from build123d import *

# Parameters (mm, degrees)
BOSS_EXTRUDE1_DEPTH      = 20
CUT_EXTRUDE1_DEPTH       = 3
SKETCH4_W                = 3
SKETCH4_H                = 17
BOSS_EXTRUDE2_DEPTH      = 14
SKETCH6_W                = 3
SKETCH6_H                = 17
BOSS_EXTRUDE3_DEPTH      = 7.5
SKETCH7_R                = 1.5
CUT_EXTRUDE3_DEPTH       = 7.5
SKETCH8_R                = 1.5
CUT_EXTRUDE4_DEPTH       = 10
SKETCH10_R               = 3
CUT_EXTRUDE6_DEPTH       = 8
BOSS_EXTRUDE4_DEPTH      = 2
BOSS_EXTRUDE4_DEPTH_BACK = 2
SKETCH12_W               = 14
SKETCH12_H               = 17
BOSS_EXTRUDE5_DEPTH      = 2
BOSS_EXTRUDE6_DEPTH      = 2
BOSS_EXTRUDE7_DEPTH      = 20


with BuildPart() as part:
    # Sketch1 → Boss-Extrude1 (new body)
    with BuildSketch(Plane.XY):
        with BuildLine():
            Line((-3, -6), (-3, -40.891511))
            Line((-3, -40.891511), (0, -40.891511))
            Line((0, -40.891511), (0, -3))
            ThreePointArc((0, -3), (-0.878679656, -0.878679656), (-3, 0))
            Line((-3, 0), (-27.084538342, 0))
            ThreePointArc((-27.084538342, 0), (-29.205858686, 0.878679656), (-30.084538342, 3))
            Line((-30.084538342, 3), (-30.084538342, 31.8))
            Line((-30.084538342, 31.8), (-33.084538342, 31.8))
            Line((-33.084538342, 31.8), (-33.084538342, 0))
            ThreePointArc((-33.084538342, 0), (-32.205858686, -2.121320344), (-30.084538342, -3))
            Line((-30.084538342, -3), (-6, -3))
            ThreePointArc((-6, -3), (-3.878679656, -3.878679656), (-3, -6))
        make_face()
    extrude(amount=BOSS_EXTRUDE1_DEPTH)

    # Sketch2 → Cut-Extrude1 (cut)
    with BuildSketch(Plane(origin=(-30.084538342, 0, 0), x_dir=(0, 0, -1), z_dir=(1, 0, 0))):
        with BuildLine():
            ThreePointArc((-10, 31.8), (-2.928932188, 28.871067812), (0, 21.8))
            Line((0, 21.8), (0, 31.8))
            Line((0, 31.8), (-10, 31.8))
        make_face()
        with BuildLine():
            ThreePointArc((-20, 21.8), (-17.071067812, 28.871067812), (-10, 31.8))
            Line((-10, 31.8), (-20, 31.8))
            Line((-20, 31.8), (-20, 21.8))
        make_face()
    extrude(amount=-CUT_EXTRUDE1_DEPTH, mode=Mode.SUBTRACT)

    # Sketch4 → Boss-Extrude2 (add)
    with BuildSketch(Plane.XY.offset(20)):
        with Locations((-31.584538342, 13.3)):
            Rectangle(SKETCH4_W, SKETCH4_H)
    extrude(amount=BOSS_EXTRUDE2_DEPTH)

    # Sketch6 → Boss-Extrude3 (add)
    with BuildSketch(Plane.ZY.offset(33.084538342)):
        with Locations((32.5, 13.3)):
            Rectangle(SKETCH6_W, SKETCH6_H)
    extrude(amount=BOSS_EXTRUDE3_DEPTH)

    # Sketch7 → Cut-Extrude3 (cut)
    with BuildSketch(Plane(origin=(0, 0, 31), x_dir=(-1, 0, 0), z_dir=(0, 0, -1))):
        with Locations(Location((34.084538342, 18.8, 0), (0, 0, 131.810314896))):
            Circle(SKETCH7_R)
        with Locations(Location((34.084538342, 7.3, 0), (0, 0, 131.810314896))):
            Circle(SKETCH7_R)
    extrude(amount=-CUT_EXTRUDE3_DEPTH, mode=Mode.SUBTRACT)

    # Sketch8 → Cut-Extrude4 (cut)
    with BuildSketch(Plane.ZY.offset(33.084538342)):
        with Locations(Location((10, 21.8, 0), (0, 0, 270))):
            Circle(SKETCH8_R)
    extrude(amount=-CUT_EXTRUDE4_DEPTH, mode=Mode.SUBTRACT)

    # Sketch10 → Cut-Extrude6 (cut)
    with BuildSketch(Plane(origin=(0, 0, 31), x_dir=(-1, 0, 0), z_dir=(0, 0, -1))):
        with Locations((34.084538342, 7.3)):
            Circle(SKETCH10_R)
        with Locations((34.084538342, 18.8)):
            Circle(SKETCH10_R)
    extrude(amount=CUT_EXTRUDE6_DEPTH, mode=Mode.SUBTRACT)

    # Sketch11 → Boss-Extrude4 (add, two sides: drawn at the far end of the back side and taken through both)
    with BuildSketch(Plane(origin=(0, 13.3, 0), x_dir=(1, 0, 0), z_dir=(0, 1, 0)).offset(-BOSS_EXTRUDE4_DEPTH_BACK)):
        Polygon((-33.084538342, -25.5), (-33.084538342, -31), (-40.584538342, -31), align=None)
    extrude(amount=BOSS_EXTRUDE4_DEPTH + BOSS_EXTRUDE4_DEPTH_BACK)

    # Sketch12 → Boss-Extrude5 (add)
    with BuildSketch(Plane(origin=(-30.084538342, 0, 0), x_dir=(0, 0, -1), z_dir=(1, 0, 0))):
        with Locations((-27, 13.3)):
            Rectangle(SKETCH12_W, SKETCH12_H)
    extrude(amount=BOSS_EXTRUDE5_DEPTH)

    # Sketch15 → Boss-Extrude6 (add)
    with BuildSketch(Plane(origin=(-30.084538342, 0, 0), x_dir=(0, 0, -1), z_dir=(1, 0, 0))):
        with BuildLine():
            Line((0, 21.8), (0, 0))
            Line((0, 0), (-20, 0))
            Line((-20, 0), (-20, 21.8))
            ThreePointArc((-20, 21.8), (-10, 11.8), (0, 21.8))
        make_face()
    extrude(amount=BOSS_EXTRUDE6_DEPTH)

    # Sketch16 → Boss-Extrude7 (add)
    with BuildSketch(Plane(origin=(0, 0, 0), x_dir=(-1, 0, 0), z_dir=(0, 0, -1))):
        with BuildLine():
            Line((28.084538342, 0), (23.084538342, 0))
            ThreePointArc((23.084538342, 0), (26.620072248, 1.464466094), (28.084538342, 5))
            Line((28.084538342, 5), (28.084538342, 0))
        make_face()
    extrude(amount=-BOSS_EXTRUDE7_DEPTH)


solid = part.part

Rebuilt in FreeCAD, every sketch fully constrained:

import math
import FreeCAD as App
import Part
import Sketcher
Q = App.Units.Quantity

doc = App.newDocument("Part")
body = doc.addObject("PartDesign::Body", "Body")

# Sketch on XY plane
sketch1 = body.newObject("Sketcher::SketchObject", "Sketch")
sketch1.AttachmentSupport = (doc.getObject("XY_Plane"), [""])
sketch1.MapMode = "FlatFace"
sketch1.addGeometry(Part.LineSegment(App.Vector(-3, -6, 0), App.Vector(-3, -40.9, 0)), False)
sketch1.addGeometry(Part.LineSegment(App.Vector(-3, -40.9, 0), App.Vector(0, -40.9, 0)), False)
sketch1.addGeometry(Part.LineSegment(App.Vector(0, -40.9, 0), App.Vector(0, -3, 0)), False)
sketch1.addGeometry(Part.ArcOfCircle(Part.Circle(App.Vector(-3, -3, 0), App.Vector(0, 0, 1), 3), math.radians(0), math.radians(90)), False)
sketch1.addGeometry(Part.LineSegment(App.Vector(-3, 0, 0), App.Vector(-27.1, 0, 0)), False)
sketch1.addGeometry(Part.ArcOfCircle(Part.Circle(App.Vector(-27.1, 3, 0), App.Vector(0, 0, 1), 3), math.radians(180), math.radians(270)), False)
sketch1.addGeometry(Part.LineSegment(App.Vector(-30.1, 3, 0), App.Vector(-30.1, 31.8, 0)), False)
sketch1.addGeometry(Part.LineSegment(App.Vector(-30.1, 31.8, 0), App.Vector(-33.1, 31.8, 0)), False)
sketch1.addGeometry(Part.LineSegment(App.Vector(-33.1, 31.8, 0), App.Vector(-33.1, 0, 0)), False)
sketch1.addGeometry(Part.ArcOfCircle(Part.Circle(App.Vector(-30.1, 0, 0), App.Vector(0, 0, 1), 3), math.radians(180), math.radians(270)), False)
sketch1.addGeometry(Part.LineSegment(App.Vector(-30.1, -3, 0), App.Vector(-6, -3, 0)), False)
sketch1.addGeometry(Part.ArcOfCircle(Part.Circle(App.Vector(-6, -6, 0), App.Vector(0, 0, 1), 3), math.radians(0), math.radians(90)), False)
sketch1.addConstraint(Sketcher.Constraint("Coincident", 0, 2, 1, 1))
sketch1.addConstraint(Sketcher.Constraint("Coincident", 1, 2, 2, 1))
sketch1.addConstraint(Sketcher.Constraint("Tangent", 2, 2, 3, 1))
sketch1.addConstraint(Sketcher.Constraint("Tangent", 3, 2, 4, 1))
sketch1.addConstraint(Sketcher.Constraint("Tangent", 4, 2, 5, 2))
sketch1.addConstraint(Sketcher.Constraint("Tangent", 5, 1, 6, 1))
sketch1.addConstraint(Sketcher.Constraint("Coincident", 6, 2, 7, 1))
sketch1.addConstraint(Sketcher.Constraint("Coincident", 7, 2, 8, 1))
sketch1.addConstraint(Sketcher.Constraint("Tangent", 8, 2, 9, 1))
sketch1.addConstraint(Sketcher.Constraint("Tangent", 9, 2, 10, 1))
sketch1.addConstraint(Sketcher.Constraint("Tangent", 10, 2, 11, 2))
sketch1.addConstraint(Sketcher.Constraint("Tangent", 11, 1, 0, 1))
sketch1.addConstraint(Sketcher.Constraint("Vertical", 0))
sketch1.addConstraint(Sketcher.Constraint("Horizontal", 1))
sketch1.addConstraint(Sketcher.Constraint("Vertical", 2))
sketch1.addConstraint(Sketcher.Constraint("Horizontal", 4))
sketch1.addConstraint(Sketcher.Constraint("Vertical", 6))
sketch1.addConstraint(Sketcher.Constraint("Horizontal", 7))
sketch1.addConstraint(Sketcher.Constraint("Vertical", 8))
sketch1.addConstraint(Sketcher.Constraint("Horizontal", 10))
sketch1.addConstraint(Sketcher.Constraint("Equal", 3, 5))
sketch1.addConstraint(Sketcher.Constraint("Equal", 5, 9))
sketch1.addConstraint(Sketcher.Constraint("Equal", 9, 11))
sketch1.addConstraint(Sketcher.Constraint("Symmetric", 5, 1, 9, 2, -1))
sketch1.addConstraint(Sketcher.Constraint("PointOnObject", 9, 3, -1))
sketch1.addConstraint(Sketcher.Constraint("PointOnObject", 1, 2, -2))
sketch1.addConstraint(Sketcher.Constraint("Vertical", 3, 3, 0, 2))
sketch1.addConstraint(Sketcher.Constraint("Radius", 3, Q("3 mm")))
sketch1.addConstraint(Sketcher.Constraint("DistanceY", 6, 1, 6, 2, Q("28.8 mm")))
sketch1.addConstraint(Sketcher.Constraint("DistanceX", 4, 2, 4, 1, Q("24.084538 mm")))
sketch1.addConstraint(Sketcher.Constraint("DistanceY", 0, 2, 0, 1, Q("34.891511 mm")))
pad1 = body.newObject("PartDesign::Pad", "Pad")
pad1.Profile = sketch1
pad1.Length = 20

# Sketch on YZ plane
sketch2 = body.newObject("Sketcher::SketchObject", "Sketch001")
sketch2.AttachmentSupport = (doc.getObject("YZ_Plane"), [""])
sketch2.MapMode = "FlatFace"
sketch2.AttachmentOffset = App.Placement(App.Vector(0, 0, -30.084538), App.Rotation())
sketch2.addGeometry(Part.ArcOfCircle(Part.Circle(App.Vector(22, 10, 0), App.Vector(0, 0, 1), 10), math.radians(-90), math.radians(0)), False)
sketch2.addGeometry(Part.LineSegment(App.Vector(22, 0, 0), App.Vector(32, 0, 0)), False)
sketch2.addGeometry(Part.LineSegment(App.Vector(32, 0, 0), App.Vector(32, 10, 0)), False)
sketch2.addGeometry(Part.ArcOfCircle(Part.Circle(App.Vector(22, 10, 0), App.Vector(0, 0, 1), 10), math.radians(0), math.radians(90)), False)
sketch2.addGeometry(Part.LineSegment(App.Vector(32, 10, 0), App.Vector(32, 20, 0)), False)
sketch2.addGeometry(Part.LineSegment(App.Vector(32, 20, 0), App.Vector(22, 20, 0)), False)
sketch2.addConstraint(Sketcher.Constraint("Tangent", 0, 1, 1, 1))
sketch2.addConstraint(Sketcher.Constraint("Coincident", 1, 2, 2, 1))
sketch2.addConstraint(Sketcher.Constraint("Tangent", 2, 2, 0, 2))
sketch2.addConstraint(Sketcher.Constraint("Tangent", 3, 1, 4, 1))
sketch2.addConstraint(Sketcher.Constraint("Coincident", 4, 2, 5, 1))
sketch2.addConstraint(Sketcher.Constraint("Tangent", 5, 2, 3, 2))
sketch2.addConstraint(Sketcher.Constraint("Horizontal", 1))
sketch2.addConstraint(Sketcher.Constraint("Vertical", 2))
sketch2.addConstraint(Sketcher.Constraint("Vertical", 4))
sketch2.addConstraint(Sketcher.Constraint("Horizontal", 5))
sketch2.addConstraint(Sketcher.Constraint("Coincident", 3, 3, 0, 3))
sketch2.addConstraint(Sketcher.Constraint("Equal", 0, 3))
sketch2.addConstraint(Sketcher.Constraint("PointOnObject", 0, 1, -1))
sketch2.addConstraint(Sketcher.Constraint("Radius", 0, Q("10 mm")))
sketch2.addConstraint(Sketcher.Constraint("DistanceX", -1, 1, 0, 3, Q("21.8 mm")))
pocket1 = body.newObject("PartDesign::Pocket", "Pocket")
pocket1.Profile = sketch2
pocket1.Length = 3

# Sketch on XY plane
sketch3 = body.newObject("Sketcher::SketchObject", "Sketch002")
sketch3.AttachmentSupport = (doc.getObject("XY_Plane"), [""])
sketch3.MapMode = "FlatFace"
sketch3.AttachmentOffset = App.Placement(App.Vector(0, 0, 20), App.Rotation())
sketch3.addGeometry(Part.LineSegment(App.Vector(-33.1, 21.8, 0), App.Vector(-33.1, 4.8, 0)), False)
sketch3.addGeometry(Part.LineSegment(App.Vector(-33.1, 4.8, 0), App.Vector(-30.1, 4.8, 0)), False)
sketch3.addGeometry(Part.LineSegment(App.Vector(-30.1, 4.8, 0), App.Vector(-30.1, 21.8, 0)), False)
sketch3.addGeometry(Part.LineSegment(App.Vector(-30.1, 21.8, 0), App.Vector(-33.1, 21.8, 0)), False)
sketch3.addConstraint(Sketcher.Constraint("Coincident", 0, 2, 1, 1))
sketch3.addConstraint(Sketcher.Constraint("Coincident", 1, 2, 2, 1))
sketch3.addConstraint(Sketcher.Constraint("Coincident", 2, 2, 3, 1))
sketch3.addConstraint(Sketcher.Constraint("Coincident", 3, 2, 0, 1))
sketch3.addConstraint(Sketcher.Constraint("Vertical", 0))
sketch3.addConstraint(Sketcher.Constraint("Horizontal", 1))
sketch3.addConstraint(Sketcher.Constraint("Vertical", 2))
sketch3.addConstraint(Sketcher.Constraint("Horizontal", 3))
sketch3.addConstraint(Sketcher.Constraint("DistanceX", 1, 1, 1, 2, Q("3 mm")))
sketch3.addConstraint(Sketcher.Constraint("DistanceY", 0, 2, 0, 1, Q("17 mm")))
sketch3.addConstraint(Sketcher.Constraint("DistanceY", -1, 1, 0, 2, Q("4.8 mm")))
sketch3.addConstraint(Sketcher.Constraint("DistanceX", 0, 2, -1, 1, Q("33.084538 mm")))
pad2 = body.newObject("PartDesign::Pad", "Pad001")
pad2.Profile = sketch3
pad2.Length = 14

# Sketch on YZ plane
sketch4 = body.newObject("Sketcher::SketchObject", "Sketch003")
sketch4.AttachmentSupport = (doc.getObject("YZ_Plane"), [""])
sketch4.MapMode = "FlatFace"
sketch4.AttachmentOffset = App.Placement(App.Vector(0, 0, -33.084538), App.Rotation())
sketch4.addGeometry(Part.LineSegment(App.Vector(21.8, 31, 0), App.Vector(4.8, 31, 0)), False)
sketch4.addGeometry(Part.LineSegment(App.Vector(4.8, 31, 0), App.Vector(4.8, 34, 0)), False)
sketch4.addGeometry(Part.LineSegment(App.Vector(4.8, 34, 0), App.Vector(21.8, 34, 0)), False)
sketch4.addGeometry(Part.LineSegment(App.Vector(21.8, 34, 0), App.Vector(21.8, 31, 0)), False)
sketch4.addConstraint(Sketcher.Constraint("Coincident", 0, 2, 1, 1))
sketch4.addConstraint(Sketcher.Constraint("Coincident", 1, 2, 2, 1))
sketch4.addConstraint(Sketcher.Constraint("Coincident", 2, 2, 3, 1))
sketch4.addConstraint(Sketcher.Constraint("Coincident", 3, 2, 0, 1))
sketch4.addConstraint(Sketcher.Constraint("Horizontal", 0))
sketch4.addConstraint(Sketcher.Constraint("Vertical", 1))
sketch4.addConstraint(Sketcher.Constraint("Horizontal", 2))
sketch4.addConstraint(Sketcher.Constraint("Vertical", 3))
sketch4.addConstraint(Sketcher.Constraint("DistanceX", 0, 2, 0, 1, Q("17 mm")))
sketch4.addConstraint(Sketcher.Constraint("DistanceY", 1, 1, 1, 2, Q("3 mm")))
sketch4.addConstraint(Sketcher.Constraint("DistanceY", -1, 1, 0, 2, Q("31 mm")))
sketch4.addConstraint(Sketcher.Constraint("DistanceX", -1, 1, 0, 2, Q("4.8 mm")))
pad3 = body.newObject("PartDesign::Pad", "Pad002")
pad3.Profile = sketch4
pad3.Length = 7.5
pad3.Reversed = True

# Sketch on XY plane
sketch5 = body.newObject("Sketcher::SketchObject", "Sketch004")
sketch5.AttachmentSupport = (doc.getObject("XY_Plane"), [""])
sketch5.MapMode = "FlatFace"
sketch5.AttachmentOffset = App.Placement(App.Vector(0, 0, 31), App.Rotation())
sketch5.addGeometry(Part.Circle(App.Vector(-34.1, 18.8, 0), App.Vector(0, 0, 1), 1.5), False)
sketch5.addGeometry(Part.Circle(App.Vector(-34.1, 7.3, 0), App.Vector(0, 0, 1), 1.5), False)
sketch5.addConstraint(Sketcher.Constraint("Equal", 0, 1))
sketch5.addConstraint(Sketcher.Constraint("Vertical", 0, 3, 1, 3))
sketch5.addConstraint(Sketcher.Constraint("Diameter", 0, Q("3 mm")))
sketch5.addConstraint(Sketcher.Constraint("DistanceY", -1, 1, 0, 3, Q("18.8 mm")))
sketch5.addConstraint(Sketcher.Constraint("DistanceY", -1, 1, 1, 3, Q("7.3 mm")))
sketch5.addConstraint(Sketcher.Constraint("DistanceX", 0, 3, -1, 1, Q("34.084538 mm")))
pocket2 = body.newObject("PartDesign::Pocket", "Pocket001")
pocket2.Profile = sketch5
pocket2.Length = 7.5
pocket2.Reversed = True

# Sketch on YZ plane
sketch6 = body.newObject("Sketcher::SketchObject", "Sketch005")
sketch6.AttachmentSupport = (doc.getObject("YZ_Plane"), [""])
sketch6.MapMode = "FlatFace"
sketch6.AttachmentOffset = App.Placement(App.Vector(0, 0, -33.084538), App.Rotation())
sketch6.addGeometry(Part.Circle(App.Vector(21.8, 10, 0), App.Vector(0, 0, 1), 1.5), False)
sketch6.addConstraint(Sketcher.Constraint("Diameter", 0, Q("3 mm")))
sketch6.addConstraint(Sketcher.Constraint("DistanceY", -1, 1, 0, 3, Q("10 mm")))
sketch6.addConstraint(Sketcher.Constraint("DistanceX", -1, 1, 0, 3, Q("21.8 mm")))
pocket3 = body.newObject("PartDesign::Pocket", "Pocket002")
pocket3.Profile = sketch6
pocket3.Length = 10
pocket3.Reversed = True

# Sketch on XY plane
sketch7 = body.newObject("Sketcher::SketchObject", "Sketch006")
sketch7.AttachmentSupport = (doc.getObject("XY_Plane"), [""])
sketch7.MapMode = "FlatFace"
sketch7.AttachmentOffset = App.Placement(App.Vector(0, 0, 31), App.Rotation())
sketch7.addGeometry(Part.Circle(App.Vector(-34.1, 7.3, 0), App.Vector(0, 0, 1), 3), False)
sketch7.addGeometry(Part.Circle(App.Vector(-34.1, 18.8, 0), App.Vector(0, 0, 1), 3), False)
sketch7.addConstraint(Sketcher.Constraint("Equal", 0, 1))
sketch7.addConstraint(Sketcher.Constraint("Vertical", 0, 3, 1, 3))
sketch7.addConstraint(Sketcher.Constraint("Diameter", 0, Q("6 mm")))
sketch7.addConstraint(Sketcher.Constraint("DistanceY", -1, 1, 0, 3, Q("7.3 mm")))
sketch7.addConstraint(Sketcher.Constraint("DistanceY", -1, 1, 1, 3, Q("18.8 mm")))
sketch7.addConstraint(Sketcher.Constraint("DistanceX", 0, 3, -1, 1, Q("34.084538 mm")))
pocket4 = body.newObject("PartDesign::Pocket", "Pocket003")
pocket4.Profile = sketch7
pocket4.Length = 8

# Sketch on XZ plane
sketch8 = body.newObject("Sketcher::SketchObject", "Sketch007")
sketch8.AttachmentSupport = (doc.getObject("XZ_Plane"), [""])
sketch8.MapMode = "FlatFace"
sketch8.AttachmentOffset = App.Placement(App.Vector(0, 0, -13.3), App.Rotation())
sketch8.addGeometry(Part.LineSegment(App.Vector(-33, 31, 0), App.Vector(-33, 26, 0)), False)
sketch8.addGeometry(Part.LineSegment(App.Vector(-33, 26, 0), App.Vector(-41, 31, 0)), False)
sketch8.addGeometry(Part.LineSegment(App.Vector(-41, 31, 0), App.Vector(-33, 31, 0)), False)
sketch8.addConstraint(Sketcher.Constraint("Coincident", 0, 2, 1, 1))
sketch8.addConstraint(Sketcher.Constraint("Coincident", 1, 2, 2, 1))
sketch8.addConstraint(Sketcher.Constraint("Coincident", 2, 2, 0, 1))
sketch8.addConstraint(Sketcher.Constraint("Vertical", 0))
sketch8.addConstraint(Sketcher.Constraint("Horizontal", 2))
sketch8.addConstraint(Sketcher.Constraint("DistanceX", 2, 1, 2, 2, Q("7.5 mm")))
sketch8.addConstraint(Sketcher.Constraint("DistanceY", 0, 2, 0, 1, Q("5.5 mm")))
sketch8.addConstraint(Sketcher.Constraint("DistanceY", -1, 1, 1, 2, Q("31 mm")))
sketch8.addConstraint(Sketcher.Constraint("DistanceX", 0, 2, -1, 1, Q("33.084538 mm")))
pad4 = body.newObject("PartDesign::Pad", "Pad003")
pad4.Profile = sketch8
pad4.Type = "TwoLengths"
pad4.Length = 2
pad4.Length2 = 2
pad4.Reversed = True

# Sketch on YZ plane
sketch9 = body.newObject("Sketcher::SketchObject", "Sketch008")
sketch9.AttachmentSupport = (doc.getObject("YZ_Plane"), [""])
sketch9.MapMode = "FlatFace"
sketch9.AttachmentOffset = App.Placement(App.Vector(0, 0, -30.084538), App.Rotation())
sketch9.addGeometry(Part.LineSegment(App.Vector(22, 34, 0), App.Vector(5, 34, 0)), False)
sketch9.addGeometry(Part.LineSegment(App.Vector(5, 34, 0), App.Vector(5, 20, 0)), False)
sketch9.addGeometry(Part.LineSegment(App.Vector(5, 20, 0), App.Vector(22, 20, 0)), False)
sketch9.addGeometry(Part.LineSegment(App.Vector(22, 20, 0), App.Vector(22, 34, 0)), False)
sketch9.addConstraint(Sketcher.Constraint("Coincident", 0, 2, 1, 1))
sketch9.addConstraint(Sketcher.Constraint("Coincident", 1, 2, 2, 1))
sketch9.addConstraint(Sketcher.Constraint("Coincident", 2, 2, 3, 1))
sketch9.addConstraint(Sketcher.Constraint("Coincident", 3, 2, 0, 1))
sketch9.addConstraint(Sketcher.Constraint("Horizontal", 0))
sketch9.addConstraint(Sketcher.Constraint("Vertical", 1))
sketch9.addConstraint(Sketcher.Constraint("Horizontal", 2))
sketch9.addConstraint(Sketcher.Constraint("Vertical", 3))
sketch9.addConstraint(Sketcher.Constraint("DistanceX", 0, 2, 0, 1, Q("17 mm")))
sketch9.addConstraint(Sketcher.Constraint("DistanceY", 1, 2, 1, 1, Q("14 mm")))
sketch9.addConstraint(Sketcher.Constraint("DistanceY", -1, 1, 0, 2, Q("34 mm")))
sketch9.addConstraint(Sketcher.Constraint("DistanceX", -1, 1, 0, 2, Q("4.8 mm")))
pad5 = body.newObject("PartDesign::Pad", "Pad004")
pad5.Profile = sketch9
pad5.Length = 2

# Sketch on YZ plane
sketch10 = body.newObject("Sketcher::SketchObject", "Sketch009")
sketch10.AttachmentSupport = (doc.getObject("YZ_Plane"), [""])
sketch10.MapMode = "FlatFace"
sketch10.AttachmentOffset = App.Placement(App.Vector(0, 0, -30.084538), App.Rotation())
sketch10.addGeometry(Part.LineSegment(App.Vector(0, 0, 0), App.Vector(22, 0, 0)), False)
sketch10.addGeometry(Part.ArcOfCircle(Part.Circle(App.Vector(22, 10, 0), App.Vector(0, 0, 1), 10), math.radians(90), math.radians(270)), False)
sketch10.addGeometry(Part.LineSegment(App.Vector(22, 20, 0), App.Vector(0, 20, 0)), False)
sketch10.addGeometry(Part.LineSegment(App.Vector(0, 20, 0), App.Vector(0, 0, 0)), False)
sketch10.addConstraint(Sketcher.Constraint("Tangent", 0, 2, 1, 2))
sketch10.addConstraint(Sketcher.Constraint("Tangent", 1, 1, 2, 1))
sketch10.addConstraint(Sketcher.Constraint("Coincident", 2, 2, 3, 1))
sketch10.addConstraint(Sketcher.Constraint("Coincident", 3, 2, 0, 1))
sketch10.addConstraint(Sketcher.Constraint("Horizontal", 0))
sketch10.addConstraint(Sketcher.Constraint("Horizontal", 2))
sketch10.addConstraint(Sketcher.Constraint("Vertical", 3))
sketch10.addConstraint(Sketcher.Constraint("Coincident", 3, 2, -1, 1))
sketch10.addConstraint(Sketcher.Constraint("Radius", 1, Q("10 mm")))
sketch10.addConstraint(Sketcher.Constraint("DistanceX", 0, 1, 0, 2, Q("21.8 mm")))
pad6 = body.newObject("PartDesign::Pad", "Pad005")
pad6.Profile = sketch10
pad6.Length = 2

# Sketch on XY plane
sketch11 = body.newObject("Sketcher::SketchObject", "Sketch010")
sketch11.AttachmentSupport = (doc.getObject("XY_Plane"), [""])
sketch11.MapMode = "FlatFace"
sketch11.addGeometry(Part.LineSegment(App.Vector(-23, 0, 0), App.Vector(-28, 0, 0)), False)
sketch11.addGeometry(Part.LineSegment(App.Vector(-28, 0, 0), App.Vector(-28, 5, 0)), False)
sketch11.addGeometry(Part.ArcOfCircle(Part.Circle(App.Vector(-23, 5, 0), App.Vector(0, 0, 1), 5), math.radians(180), math.radians(270)), False)
sketch11.addConstraint(Sketcher.Constraint("Coincident", 0, 2, 1, 1))
sketch11.addConstraint(Sketcher.Constraint("Tangent", 1, 2, 2, 1))
sketch11.addConstraint(Sketcher.Constraint("Tangent", 2, 2, 0, 1))
sketch11.addConstraint(Sketcher.Constraint("Horizontal", 0))
sketch11.addConstraint(Sketcher.Constraint("Vertical", 1))
sketch11.addConstraint(Sketcher.Constraint("PointOnObject", 0, 2, -1))
sketch11.addConstraint(Sketcher.Constraint("Radius", 2, Q("5 mm")))
sketch11.addConstraint(Sketcher.Constraint("DistanceX", 2, 3, -1, 1, Q("23.084538 mm")))
pad7 = body.newObject("PartDesign::Pad", "Pad006")
pad7.Profile = sketch11
pad7.Length = 20

doc.recompute()
